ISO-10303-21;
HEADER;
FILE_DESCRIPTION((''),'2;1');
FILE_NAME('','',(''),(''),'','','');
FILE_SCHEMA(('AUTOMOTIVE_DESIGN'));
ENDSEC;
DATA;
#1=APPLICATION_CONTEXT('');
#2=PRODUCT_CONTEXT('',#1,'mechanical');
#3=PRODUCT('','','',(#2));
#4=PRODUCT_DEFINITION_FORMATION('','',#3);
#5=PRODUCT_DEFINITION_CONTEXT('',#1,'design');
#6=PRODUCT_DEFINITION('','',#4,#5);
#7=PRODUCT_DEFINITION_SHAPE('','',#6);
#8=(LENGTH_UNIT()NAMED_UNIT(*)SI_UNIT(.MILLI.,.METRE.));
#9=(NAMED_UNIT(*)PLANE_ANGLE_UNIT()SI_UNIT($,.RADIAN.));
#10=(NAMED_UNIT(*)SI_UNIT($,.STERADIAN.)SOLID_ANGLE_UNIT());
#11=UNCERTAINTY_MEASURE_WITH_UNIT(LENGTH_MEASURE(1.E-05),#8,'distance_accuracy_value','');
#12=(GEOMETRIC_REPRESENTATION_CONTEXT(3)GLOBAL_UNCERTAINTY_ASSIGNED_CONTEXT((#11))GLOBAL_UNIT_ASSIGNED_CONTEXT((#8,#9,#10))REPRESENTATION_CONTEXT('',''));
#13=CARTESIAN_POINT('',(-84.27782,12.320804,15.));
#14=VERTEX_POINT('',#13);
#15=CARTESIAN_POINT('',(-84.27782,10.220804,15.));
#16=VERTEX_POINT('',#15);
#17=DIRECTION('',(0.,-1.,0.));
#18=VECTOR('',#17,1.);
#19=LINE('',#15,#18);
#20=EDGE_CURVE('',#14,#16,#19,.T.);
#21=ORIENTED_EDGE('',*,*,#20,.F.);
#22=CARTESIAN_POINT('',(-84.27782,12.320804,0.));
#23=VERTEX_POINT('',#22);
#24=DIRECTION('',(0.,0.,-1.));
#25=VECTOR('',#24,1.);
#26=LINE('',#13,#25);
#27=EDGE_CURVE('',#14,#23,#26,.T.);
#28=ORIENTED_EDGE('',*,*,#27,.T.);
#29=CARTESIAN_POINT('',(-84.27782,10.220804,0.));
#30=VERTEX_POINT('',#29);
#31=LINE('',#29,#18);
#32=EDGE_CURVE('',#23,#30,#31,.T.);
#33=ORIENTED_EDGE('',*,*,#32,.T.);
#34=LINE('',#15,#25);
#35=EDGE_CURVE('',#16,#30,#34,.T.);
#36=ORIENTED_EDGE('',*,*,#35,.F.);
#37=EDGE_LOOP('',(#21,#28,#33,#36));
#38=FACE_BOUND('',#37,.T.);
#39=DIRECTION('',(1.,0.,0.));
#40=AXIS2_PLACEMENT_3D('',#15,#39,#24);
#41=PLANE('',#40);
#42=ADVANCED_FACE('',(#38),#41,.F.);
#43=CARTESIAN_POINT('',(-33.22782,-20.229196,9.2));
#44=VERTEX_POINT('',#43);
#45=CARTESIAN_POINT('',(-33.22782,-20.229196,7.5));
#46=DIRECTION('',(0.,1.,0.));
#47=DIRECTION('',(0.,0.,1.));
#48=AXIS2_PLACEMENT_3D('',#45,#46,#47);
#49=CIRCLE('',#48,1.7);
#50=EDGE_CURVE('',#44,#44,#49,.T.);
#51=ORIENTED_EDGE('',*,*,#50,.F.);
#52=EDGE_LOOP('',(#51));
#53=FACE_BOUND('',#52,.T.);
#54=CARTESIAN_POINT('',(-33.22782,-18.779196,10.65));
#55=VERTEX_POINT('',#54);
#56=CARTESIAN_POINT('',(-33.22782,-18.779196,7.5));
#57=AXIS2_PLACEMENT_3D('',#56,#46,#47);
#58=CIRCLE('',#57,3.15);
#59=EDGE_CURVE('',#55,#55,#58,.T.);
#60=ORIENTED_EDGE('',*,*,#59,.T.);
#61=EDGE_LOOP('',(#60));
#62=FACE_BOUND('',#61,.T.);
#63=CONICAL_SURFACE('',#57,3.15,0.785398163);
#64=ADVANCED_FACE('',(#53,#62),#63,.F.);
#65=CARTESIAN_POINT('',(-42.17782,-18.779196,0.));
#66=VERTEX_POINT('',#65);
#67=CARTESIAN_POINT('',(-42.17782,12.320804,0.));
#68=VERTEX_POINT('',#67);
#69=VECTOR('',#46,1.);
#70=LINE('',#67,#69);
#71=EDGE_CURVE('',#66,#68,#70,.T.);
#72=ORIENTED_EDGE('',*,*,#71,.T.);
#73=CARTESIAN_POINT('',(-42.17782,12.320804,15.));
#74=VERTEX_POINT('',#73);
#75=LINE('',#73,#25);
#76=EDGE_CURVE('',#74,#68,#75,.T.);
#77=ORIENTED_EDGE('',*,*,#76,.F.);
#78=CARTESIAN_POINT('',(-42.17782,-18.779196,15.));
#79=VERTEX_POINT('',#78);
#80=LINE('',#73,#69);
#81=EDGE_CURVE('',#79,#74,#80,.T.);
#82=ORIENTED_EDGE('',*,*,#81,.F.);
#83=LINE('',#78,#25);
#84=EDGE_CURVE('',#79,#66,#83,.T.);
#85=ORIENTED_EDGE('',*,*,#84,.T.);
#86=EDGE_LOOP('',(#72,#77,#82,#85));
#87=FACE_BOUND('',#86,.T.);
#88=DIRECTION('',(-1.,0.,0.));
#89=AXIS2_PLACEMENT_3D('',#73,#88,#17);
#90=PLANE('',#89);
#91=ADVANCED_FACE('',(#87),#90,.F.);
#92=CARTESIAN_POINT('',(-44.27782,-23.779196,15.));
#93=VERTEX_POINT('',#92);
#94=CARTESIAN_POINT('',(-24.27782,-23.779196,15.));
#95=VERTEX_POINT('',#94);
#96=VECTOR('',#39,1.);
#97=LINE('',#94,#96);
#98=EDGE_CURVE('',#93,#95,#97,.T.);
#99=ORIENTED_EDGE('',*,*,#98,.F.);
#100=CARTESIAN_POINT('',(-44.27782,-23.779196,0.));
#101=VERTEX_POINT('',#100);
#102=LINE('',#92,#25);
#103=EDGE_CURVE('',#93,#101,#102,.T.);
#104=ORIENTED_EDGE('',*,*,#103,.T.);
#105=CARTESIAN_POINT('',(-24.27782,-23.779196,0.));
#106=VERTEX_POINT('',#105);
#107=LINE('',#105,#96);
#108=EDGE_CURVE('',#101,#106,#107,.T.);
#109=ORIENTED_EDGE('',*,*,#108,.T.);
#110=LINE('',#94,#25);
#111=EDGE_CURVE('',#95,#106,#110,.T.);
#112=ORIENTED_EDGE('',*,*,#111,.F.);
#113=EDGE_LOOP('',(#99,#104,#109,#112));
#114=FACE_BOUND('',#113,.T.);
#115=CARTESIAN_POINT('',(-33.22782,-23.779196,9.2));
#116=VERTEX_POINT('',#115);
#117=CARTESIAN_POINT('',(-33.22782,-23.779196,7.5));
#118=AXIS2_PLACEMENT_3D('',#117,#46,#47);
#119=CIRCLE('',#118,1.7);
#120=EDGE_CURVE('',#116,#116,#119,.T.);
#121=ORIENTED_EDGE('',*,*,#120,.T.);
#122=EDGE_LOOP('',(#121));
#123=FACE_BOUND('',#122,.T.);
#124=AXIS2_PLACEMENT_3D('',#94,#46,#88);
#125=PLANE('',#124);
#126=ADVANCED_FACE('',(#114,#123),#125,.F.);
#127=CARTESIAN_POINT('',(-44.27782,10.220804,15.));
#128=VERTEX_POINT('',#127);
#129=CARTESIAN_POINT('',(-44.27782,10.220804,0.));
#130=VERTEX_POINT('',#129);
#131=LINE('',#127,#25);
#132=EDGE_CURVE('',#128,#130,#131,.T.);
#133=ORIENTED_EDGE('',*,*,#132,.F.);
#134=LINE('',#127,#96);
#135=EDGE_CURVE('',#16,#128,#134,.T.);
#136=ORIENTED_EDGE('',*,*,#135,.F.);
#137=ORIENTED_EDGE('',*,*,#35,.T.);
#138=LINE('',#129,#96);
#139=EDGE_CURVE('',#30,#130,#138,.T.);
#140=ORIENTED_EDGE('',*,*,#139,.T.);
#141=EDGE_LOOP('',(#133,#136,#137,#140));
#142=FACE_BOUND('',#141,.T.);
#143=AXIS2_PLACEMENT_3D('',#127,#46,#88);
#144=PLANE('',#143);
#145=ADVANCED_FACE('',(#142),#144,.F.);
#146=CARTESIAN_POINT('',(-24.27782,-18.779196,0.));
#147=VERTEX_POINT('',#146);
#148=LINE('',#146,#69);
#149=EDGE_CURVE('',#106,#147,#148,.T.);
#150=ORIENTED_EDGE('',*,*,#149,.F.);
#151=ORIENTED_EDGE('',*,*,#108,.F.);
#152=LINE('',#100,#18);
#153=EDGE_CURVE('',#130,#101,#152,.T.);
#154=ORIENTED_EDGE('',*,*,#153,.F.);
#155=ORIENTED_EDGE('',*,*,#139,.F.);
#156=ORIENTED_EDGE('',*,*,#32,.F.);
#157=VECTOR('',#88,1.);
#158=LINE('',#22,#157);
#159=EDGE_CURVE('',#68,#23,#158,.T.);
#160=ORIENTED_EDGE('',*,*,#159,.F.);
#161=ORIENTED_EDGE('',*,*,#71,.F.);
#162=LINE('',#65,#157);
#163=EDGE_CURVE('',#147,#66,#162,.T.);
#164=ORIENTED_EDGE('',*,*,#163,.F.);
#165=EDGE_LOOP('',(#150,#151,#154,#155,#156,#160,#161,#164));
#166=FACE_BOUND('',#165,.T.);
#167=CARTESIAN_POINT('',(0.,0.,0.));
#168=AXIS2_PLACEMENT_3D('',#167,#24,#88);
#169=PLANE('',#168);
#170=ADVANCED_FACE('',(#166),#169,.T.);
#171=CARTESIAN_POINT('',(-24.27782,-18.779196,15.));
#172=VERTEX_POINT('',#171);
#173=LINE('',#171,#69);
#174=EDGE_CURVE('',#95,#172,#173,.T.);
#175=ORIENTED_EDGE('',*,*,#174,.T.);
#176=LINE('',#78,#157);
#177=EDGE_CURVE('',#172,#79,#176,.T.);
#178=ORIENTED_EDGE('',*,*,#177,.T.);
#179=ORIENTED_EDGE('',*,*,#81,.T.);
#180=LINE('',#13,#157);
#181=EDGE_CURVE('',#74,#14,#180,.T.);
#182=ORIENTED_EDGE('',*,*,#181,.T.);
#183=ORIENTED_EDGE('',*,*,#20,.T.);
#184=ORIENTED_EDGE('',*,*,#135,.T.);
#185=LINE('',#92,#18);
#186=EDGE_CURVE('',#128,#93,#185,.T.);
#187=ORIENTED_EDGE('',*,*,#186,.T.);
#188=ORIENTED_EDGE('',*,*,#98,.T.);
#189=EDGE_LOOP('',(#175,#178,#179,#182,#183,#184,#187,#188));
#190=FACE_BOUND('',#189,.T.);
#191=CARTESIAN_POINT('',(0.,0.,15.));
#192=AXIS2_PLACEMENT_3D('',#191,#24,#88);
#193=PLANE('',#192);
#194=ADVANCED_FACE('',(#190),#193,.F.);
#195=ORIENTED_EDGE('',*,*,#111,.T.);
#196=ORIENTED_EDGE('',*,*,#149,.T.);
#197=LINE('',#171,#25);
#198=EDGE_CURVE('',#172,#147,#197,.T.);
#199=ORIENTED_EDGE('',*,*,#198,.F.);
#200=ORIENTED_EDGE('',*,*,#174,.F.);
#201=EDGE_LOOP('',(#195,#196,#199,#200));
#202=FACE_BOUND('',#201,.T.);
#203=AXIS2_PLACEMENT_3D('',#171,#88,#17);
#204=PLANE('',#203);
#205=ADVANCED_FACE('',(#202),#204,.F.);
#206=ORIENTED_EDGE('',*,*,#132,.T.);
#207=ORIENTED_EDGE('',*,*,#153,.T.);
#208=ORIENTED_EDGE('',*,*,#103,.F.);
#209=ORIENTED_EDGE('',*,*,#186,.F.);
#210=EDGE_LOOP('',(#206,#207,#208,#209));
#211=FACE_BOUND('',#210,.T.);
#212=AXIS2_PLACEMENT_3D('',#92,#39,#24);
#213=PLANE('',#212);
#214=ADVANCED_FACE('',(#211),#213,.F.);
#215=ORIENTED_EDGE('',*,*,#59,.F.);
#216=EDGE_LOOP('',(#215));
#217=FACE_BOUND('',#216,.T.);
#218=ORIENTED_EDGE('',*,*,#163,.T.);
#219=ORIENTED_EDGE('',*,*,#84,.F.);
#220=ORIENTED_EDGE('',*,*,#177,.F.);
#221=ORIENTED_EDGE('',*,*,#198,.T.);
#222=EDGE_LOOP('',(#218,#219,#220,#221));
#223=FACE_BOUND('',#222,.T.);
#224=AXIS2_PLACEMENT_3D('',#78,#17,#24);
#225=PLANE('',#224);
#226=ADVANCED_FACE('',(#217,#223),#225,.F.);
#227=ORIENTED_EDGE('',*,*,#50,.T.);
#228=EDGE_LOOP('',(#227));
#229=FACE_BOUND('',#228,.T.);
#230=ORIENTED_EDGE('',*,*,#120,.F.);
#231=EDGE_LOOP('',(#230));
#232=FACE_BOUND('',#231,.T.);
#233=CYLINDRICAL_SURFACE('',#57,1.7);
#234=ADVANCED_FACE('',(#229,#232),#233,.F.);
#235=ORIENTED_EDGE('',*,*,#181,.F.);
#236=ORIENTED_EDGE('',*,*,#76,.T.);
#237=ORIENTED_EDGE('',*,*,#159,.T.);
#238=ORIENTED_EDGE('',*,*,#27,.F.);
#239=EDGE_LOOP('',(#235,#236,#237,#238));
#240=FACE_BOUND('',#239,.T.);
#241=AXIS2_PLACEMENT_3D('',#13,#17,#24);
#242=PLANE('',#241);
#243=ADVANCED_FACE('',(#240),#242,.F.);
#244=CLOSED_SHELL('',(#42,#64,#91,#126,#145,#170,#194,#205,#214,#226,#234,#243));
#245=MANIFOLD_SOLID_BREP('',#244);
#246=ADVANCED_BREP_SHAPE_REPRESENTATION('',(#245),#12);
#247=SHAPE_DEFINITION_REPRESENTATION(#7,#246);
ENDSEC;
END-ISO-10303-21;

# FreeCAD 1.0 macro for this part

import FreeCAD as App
import Part
import Sketcher


def add_polygon(sketch, points):
    """Adds a closed chain of lines whose ends are joined by coincident constraints."""
    first, n = sketch.GeometryCount, len(points)
    for a, b in zip(points, points[1:] + points[:1]):
        sketch.addGeometry(Part.LineSegment(App.Vector(*a, 0), App.Vector(*b, 0)), False)
    for i in range(n):
        sketch.addConstraint(Sketcher.Constraint("Coincident", first + i, 2, first + (i + 1) % n, 1))

doc = App.newDocument("Part")
body = doc.addObject("PartDesign::Body", "Body")

sketch1 = body.newObject("Sketcher::SketchObject", "Sketch")
sketch1.AttachmentSupport = (doc.getObject("XY_Plane"), [""])
sketch1.MapMode = "FlatFace"
add_polygon(sketch1, [(-24.27782, -23.779196), (-24.27782, -18.779196), (-42.17782, -18.779196), (-42.17782, 12.320804), (-84.27782, 12.320804), (-84.27782, 10.220804), (-44.27782, 10.220804), (-44.27782, -23.779196)])
sketch1.addConstraint(Sketcher.Constraint("Vertical", 0))
sketch1.addConstraint(Sketcher.Constraint("Horizontal", 1))
sketch1.addConstraint(Sketcher.Constraint("Vertical", 2))
sketch1.addConstraint(Sketcher.Constraint("Horizontal", 3))
sketch1.addConstraint(Sketcher.Constraint("Vertical", 4))
sketch1.addConstraint(Sketcher.Constraint("Horizontal", 5))
sketch1.addConstraint(Sketcher.Constraint("Vertical", 6))
sketch1.addConstraint(Sketcher.Constraint("Horizontal", 7))
sketch1.addConstraint(Sketcher.Constraint("DistanceX", 5, 1, 5, 2, 40.0))
sketch1.addConstraint(Sketcher.Constraint("DistanceX", 7, 1, 7, 2, 20.0))
sketch1.addConstraint(Sketcher.Constraint("DistanceY", 0, 1, 0, 2, 5.0))
sketch1.addConstraint(Sketcher.Constraint("DistanceY", 6, 2, 6, 1, 34.0))
sketch1.addConstraint(Sketcher.Constraint("DistanceX", 1, 2, 1, 1, 17.9))
sketch1.addConstraint(Sketcher.Constraint("DistanceY", 2, 1, 2, 2, 31.1))
sketch1.addConstraint(Sketcher.Constraint("DistanceX", 0, 2, -1, 1, 24.27782))
sketch1.addConstraint(Sketcher.Constraint("DistanceY", 0, 2, -1, 1, 18.779196))
pad1 = body.newObject("PartDesign::Pad", "Pad")
pad1.Profile = sketch1
pad1.Length = 15

sketch2 = body.newObject("Sketcher::SketchObject", "Sketch001")
sketch2.AttachmentSupport = (doc.getObject("XZ_Plane"), [""])
sketch2.MapMode = "FlatFace"
sketch2.AttachmentOffset = App.Placement(App.Vector(0, 0, 18.779196), App.Rotation())
sketch2.addGeometry(Part.Circle(App.Vector(-33.22782, 7.5, 0), App.Vector(0, 0, 1), 1.5), False)
sketch2.addConstraint(Sketcher.Constraint("Diameter", 0, 3.0))
sketch2.addConstraint(Sketcher.Constraint("DistanceY", -1, 1, 0, 3, 7.5))
sketch2.addConstraint(Sketcher.Constraint("DistanceX", 0, 3, -1, 1, 33.22782))
pocket1 = body.newObject("PartDesign::Pocket", "Pocket")
pocket1.Profile = sketch2
pocket1.Length = 5
pocket1.Reversed = True

sketch3 = body.newObject("Sketcher::SketchObject", "Sketch002")
sketch3.AttachmentSupport = (doc.getObject("XZ_Plane"), [""])
sketch3.MapMode = "FlatFace"
sketch3.AttachmentOffset = App.Placement(App.Vector(0, 0, 18.779196), App.Rotation())
sketch3.addGeometry(Part.Circle(App.Vector(-33.22782, 7.5, 0), App.Vector(0, 0, 1), 1.7), False)
sketch3.addConstraint(Sketcher.Constraint("Diameter", 0, 3.4))
sketch3.addConstraint(Sketcher.Constraint("DistanceY", -1, 1, 0, 3, 7.5))
sketch3.addConstraint(Sketcher.Constraint("DistanceX", 0, 3, -1, 1, 33.22782))
doc.recompute()
hole = body.newObject("PartDesign::Hole", "Hole")
hole.Profile = sketch3
hole.ThreadType = "None"
hole.Diameter = 3.4
hole.DepthType = "ThroughAll"
hole.HoleCutType = "Countersink"
hole.HoleCutDiameter = 6.3
hole.HoleCutCountersinkAngle = 90
hole.Reversed = True

doc.recompute()
